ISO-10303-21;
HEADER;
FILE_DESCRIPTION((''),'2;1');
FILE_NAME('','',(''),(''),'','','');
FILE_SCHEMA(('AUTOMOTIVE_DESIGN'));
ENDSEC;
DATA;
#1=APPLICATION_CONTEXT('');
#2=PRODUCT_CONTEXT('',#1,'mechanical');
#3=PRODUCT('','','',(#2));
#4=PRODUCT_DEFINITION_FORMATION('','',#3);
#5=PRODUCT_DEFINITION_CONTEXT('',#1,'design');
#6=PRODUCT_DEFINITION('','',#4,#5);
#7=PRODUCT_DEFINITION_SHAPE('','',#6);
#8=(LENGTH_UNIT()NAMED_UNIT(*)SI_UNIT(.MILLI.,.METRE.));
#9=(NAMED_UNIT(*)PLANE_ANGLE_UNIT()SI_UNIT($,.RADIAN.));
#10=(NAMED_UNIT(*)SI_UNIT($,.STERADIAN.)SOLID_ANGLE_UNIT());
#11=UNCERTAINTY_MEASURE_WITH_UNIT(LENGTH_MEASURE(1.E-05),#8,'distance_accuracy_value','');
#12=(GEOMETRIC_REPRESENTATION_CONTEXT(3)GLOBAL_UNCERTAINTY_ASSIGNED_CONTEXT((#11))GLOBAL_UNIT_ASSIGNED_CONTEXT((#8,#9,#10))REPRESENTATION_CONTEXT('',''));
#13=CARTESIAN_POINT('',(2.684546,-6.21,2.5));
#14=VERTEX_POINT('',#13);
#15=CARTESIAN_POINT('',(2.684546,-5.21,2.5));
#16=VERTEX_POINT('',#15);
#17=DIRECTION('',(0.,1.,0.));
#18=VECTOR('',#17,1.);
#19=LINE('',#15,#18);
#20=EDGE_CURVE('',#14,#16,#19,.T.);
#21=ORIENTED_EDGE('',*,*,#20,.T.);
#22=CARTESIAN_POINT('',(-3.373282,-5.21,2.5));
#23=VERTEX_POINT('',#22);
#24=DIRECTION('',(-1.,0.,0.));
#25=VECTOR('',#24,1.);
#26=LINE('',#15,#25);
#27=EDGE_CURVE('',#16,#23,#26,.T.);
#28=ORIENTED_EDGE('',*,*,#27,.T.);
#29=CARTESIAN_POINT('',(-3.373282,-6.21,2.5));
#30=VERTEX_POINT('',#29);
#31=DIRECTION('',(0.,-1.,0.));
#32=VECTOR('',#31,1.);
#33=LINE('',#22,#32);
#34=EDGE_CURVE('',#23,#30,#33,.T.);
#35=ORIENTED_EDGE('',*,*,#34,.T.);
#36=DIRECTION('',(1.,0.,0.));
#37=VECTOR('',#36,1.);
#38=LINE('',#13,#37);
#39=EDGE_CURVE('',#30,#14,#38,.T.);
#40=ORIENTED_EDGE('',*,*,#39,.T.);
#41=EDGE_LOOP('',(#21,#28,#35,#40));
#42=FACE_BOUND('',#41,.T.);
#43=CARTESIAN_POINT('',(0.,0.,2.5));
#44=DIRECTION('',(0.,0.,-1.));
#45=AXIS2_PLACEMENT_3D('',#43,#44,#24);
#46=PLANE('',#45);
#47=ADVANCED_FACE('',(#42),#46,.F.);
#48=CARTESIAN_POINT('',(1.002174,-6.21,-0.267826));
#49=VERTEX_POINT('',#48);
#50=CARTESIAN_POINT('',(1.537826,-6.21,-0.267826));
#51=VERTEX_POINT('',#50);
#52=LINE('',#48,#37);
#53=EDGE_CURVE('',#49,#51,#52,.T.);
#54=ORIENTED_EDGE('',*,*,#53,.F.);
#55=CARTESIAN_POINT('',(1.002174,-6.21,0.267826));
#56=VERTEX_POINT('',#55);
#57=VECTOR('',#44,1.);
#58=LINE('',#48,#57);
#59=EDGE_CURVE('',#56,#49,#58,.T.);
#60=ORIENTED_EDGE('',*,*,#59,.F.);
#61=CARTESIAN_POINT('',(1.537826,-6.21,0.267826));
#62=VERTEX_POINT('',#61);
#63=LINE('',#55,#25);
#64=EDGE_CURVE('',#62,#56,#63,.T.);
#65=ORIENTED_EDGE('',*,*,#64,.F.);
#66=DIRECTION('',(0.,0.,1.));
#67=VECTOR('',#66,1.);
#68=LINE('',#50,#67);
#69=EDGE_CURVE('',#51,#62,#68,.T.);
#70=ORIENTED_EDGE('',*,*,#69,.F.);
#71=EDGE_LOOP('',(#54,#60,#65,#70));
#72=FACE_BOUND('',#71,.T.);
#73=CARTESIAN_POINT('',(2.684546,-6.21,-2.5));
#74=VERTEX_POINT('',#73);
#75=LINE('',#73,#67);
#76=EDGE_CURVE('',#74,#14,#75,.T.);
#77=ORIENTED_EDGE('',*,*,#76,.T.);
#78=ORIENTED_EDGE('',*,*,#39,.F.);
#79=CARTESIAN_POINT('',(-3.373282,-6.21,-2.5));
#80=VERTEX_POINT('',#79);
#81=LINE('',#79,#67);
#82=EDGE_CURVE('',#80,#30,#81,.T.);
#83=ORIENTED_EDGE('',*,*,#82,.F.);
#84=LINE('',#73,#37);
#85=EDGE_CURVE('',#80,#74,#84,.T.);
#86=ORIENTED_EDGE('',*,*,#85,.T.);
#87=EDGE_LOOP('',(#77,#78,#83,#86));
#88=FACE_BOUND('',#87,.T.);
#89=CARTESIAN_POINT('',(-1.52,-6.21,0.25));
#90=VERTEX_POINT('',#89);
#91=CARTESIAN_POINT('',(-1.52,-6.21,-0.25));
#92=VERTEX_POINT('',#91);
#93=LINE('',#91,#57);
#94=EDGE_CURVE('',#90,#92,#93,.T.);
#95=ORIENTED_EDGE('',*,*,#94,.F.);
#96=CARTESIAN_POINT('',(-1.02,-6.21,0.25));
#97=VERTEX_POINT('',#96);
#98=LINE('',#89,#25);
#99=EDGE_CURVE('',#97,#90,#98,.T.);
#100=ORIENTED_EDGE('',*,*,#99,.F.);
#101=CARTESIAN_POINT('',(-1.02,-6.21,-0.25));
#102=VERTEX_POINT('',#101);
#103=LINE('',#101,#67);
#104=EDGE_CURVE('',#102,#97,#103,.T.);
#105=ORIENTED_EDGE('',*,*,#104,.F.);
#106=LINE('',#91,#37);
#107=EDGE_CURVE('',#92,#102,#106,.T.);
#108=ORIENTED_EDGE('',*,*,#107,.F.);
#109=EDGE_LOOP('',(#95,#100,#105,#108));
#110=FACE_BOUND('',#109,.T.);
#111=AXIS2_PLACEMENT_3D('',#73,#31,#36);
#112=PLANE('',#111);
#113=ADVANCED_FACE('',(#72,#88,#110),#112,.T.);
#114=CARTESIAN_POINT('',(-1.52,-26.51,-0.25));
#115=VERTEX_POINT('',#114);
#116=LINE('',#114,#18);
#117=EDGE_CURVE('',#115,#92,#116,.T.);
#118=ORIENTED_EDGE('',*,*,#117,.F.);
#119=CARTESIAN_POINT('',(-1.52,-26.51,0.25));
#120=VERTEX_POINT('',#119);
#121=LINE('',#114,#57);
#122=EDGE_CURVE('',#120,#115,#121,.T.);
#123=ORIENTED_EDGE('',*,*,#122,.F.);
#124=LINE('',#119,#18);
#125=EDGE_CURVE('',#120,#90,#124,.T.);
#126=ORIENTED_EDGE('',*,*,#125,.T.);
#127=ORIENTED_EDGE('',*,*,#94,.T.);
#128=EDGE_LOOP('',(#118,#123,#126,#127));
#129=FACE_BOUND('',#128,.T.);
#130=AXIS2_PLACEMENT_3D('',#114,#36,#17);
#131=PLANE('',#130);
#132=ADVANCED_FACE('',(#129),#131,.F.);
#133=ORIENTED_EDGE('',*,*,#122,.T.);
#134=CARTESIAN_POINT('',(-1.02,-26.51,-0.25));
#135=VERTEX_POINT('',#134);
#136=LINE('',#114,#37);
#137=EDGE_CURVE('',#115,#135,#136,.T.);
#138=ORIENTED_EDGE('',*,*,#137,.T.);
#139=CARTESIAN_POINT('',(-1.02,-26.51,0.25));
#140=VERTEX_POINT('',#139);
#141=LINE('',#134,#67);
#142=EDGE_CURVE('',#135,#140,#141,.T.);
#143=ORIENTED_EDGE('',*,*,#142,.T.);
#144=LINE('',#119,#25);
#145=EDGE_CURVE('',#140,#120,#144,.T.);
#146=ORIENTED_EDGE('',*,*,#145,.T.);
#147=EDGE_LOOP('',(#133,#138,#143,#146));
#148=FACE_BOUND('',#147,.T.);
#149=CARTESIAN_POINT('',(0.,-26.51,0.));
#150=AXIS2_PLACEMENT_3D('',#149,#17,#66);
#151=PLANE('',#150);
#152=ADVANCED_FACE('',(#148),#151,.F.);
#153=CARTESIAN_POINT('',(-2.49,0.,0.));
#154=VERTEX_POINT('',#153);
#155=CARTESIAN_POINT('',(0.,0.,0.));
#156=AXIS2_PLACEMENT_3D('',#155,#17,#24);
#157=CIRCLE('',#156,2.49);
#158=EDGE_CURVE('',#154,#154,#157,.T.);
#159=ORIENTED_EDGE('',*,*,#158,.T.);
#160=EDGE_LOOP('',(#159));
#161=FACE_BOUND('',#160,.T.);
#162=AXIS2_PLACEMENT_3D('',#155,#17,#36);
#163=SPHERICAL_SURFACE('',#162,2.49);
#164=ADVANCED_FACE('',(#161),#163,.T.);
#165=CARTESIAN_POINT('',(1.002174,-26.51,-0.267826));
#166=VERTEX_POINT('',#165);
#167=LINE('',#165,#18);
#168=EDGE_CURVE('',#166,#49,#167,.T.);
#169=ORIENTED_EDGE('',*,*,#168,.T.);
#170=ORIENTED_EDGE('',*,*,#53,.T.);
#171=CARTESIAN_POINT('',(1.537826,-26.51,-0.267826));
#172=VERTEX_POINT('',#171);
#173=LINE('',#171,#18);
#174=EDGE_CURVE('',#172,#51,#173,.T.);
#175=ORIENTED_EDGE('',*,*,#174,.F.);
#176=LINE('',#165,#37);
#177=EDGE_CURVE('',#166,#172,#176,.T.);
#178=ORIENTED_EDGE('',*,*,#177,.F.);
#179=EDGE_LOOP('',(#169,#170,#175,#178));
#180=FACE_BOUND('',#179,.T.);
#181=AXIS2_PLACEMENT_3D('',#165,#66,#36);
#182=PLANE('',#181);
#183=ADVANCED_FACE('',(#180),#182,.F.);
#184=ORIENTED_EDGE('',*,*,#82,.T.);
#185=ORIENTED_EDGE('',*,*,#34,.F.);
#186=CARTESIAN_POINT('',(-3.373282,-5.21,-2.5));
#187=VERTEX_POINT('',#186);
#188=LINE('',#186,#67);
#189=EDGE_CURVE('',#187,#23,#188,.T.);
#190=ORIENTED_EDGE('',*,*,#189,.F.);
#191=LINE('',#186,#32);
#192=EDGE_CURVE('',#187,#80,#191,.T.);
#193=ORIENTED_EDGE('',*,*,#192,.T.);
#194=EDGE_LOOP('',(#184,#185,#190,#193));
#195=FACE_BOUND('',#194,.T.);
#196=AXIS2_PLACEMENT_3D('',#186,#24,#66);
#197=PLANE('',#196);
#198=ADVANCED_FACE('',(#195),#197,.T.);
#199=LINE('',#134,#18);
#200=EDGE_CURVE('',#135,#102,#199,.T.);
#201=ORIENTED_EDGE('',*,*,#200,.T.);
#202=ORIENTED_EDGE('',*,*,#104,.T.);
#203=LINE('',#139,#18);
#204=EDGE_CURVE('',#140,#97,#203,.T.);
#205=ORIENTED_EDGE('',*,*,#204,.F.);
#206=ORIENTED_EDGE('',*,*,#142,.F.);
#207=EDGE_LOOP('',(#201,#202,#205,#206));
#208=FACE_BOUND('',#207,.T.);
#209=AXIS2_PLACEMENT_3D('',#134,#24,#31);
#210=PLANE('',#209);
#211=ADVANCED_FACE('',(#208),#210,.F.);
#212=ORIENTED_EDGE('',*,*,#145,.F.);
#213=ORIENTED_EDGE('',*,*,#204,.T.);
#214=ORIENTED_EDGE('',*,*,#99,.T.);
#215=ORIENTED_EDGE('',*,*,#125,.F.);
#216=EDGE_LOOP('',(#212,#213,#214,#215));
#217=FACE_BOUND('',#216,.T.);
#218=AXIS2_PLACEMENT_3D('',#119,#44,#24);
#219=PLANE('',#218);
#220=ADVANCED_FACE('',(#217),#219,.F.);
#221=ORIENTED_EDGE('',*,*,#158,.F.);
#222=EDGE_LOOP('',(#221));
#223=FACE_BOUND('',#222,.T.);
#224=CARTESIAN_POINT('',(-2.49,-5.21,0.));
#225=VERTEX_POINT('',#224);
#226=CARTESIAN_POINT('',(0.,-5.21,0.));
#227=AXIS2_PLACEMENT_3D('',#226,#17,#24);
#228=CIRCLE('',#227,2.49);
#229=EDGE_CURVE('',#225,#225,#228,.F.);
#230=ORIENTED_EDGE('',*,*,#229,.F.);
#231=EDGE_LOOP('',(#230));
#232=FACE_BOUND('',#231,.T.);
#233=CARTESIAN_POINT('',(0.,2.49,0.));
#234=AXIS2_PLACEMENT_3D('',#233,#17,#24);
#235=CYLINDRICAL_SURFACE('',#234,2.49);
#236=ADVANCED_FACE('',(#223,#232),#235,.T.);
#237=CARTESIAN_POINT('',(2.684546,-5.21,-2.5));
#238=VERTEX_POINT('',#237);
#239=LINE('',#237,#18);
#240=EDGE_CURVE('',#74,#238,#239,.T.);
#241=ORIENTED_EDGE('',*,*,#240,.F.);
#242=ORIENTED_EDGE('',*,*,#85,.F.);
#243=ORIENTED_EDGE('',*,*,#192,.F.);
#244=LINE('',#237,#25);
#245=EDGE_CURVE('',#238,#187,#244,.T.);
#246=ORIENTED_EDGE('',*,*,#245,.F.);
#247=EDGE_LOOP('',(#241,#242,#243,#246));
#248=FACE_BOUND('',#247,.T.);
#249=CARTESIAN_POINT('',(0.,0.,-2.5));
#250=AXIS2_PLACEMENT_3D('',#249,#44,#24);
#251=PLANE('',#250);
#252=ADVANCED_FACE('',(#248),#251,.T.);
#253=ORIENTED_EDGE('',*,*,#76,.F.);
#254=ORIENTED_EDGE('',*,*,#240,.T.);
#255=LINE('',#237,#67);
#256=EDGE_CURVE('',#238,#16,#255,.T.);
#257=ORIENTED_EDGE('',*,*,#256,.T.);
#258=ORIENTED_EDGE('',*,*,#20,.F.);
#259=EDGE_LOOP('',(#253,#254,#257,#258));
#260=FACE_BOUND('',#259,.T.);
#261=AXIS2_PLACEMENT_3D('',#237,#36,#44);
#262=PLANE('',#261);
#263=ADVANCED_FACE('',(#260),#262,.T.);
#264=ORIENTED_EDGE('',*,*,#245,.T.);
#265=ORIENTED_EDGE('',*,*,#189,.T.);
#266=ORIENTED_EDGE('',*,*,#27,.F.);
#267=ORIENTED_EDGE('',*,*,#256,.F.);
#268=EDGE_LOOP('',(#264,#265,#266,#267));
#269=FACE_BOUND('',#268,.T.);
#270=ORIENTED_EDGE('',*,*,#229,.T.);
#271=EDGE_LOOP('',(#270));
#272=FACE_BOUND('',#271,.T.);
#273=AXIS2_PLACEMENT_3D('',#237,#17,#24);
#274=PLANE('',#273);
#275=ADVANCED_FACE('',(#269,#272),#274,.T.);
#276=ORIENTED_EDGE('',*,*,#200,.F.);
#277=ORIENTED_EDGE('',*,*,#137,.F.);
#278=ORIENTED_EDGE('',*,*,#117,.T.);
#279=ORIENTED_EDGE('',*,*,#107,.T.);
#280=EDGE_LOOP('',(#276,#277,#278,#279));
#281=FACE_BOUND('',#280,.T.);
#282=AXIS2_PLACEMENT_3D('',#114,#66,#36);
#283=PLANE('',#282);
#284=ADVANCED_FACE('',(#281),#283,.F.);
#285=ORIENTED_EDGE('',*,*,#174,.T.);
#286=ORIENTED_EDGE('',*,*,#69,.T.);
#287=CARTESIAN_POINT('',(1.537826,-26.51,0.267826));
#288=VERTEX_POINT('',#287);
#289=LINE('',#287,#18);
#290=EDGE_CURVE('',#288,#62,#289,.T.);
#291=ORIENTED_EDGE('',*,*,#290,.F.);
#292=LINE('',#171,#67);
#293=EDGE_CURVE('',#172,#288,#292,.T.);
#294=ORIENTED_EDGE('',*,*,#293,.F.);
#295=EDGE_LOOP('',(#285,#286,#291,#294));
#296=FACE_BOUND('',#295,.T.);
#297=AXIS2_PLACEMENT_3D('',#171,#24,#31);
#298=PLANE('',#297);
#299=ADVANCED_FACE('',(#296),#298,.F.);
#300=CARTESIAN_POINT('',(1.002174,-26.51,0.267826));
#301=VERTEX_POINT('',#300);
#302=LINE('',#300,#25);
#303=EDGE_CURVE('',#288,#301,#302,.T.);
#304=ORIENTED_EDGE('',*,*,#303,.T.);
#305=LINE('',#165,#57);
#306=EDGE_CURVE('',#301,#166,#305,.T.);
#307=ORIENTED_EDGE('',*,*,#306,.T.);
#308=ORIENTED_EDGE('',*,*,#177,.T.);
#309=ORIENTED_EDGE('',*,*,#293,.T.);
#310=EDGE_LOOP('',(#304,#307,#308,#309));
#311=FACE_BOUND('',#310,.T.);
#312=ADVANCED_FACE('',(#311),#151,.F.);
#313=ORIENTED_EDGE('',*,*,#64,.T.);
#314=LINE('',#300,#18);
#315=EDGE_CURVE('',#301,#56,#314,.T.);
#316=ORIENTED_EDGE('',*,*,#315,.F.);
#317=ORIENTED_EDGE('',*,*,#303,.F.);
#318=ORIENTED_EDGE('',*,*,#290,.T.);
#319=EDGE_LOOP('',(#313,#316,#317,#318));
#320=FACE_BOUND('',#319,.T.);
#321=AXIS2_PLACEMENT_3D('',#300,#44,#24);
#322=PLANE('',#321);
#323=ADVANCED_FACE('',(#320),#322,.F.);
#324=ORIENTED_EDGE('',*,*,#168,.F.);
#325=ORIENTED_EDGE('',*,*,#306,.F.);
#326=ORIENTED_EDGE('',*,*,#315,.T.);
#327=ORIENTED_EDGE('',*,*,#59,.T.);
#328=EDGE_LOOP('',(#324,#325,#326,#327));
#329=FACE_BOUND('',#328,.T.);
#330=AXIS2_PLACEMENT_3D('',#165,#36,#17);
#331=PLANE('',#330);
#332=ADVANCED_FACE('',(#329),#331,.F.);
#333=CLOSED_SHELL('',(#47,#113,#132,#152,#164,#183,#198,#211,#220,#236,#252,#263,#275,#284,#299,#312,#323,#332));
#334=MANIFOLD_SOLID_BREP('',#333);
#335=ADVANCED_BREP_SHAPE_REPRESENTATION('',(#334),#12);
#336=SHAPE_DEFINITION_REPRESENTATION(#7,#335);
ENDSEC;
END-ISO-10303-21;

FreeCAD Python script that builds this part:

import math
import FreeCAD as App
import Part
import Sketcher

V = App.Vector
Q = App.Units.Quantity


def add_polygon(sketch, points):
    """Adds a closed chain of lines whose ends are joined by coincident constraints."""
    first, n = sketch.GeometryCount, len(points)
    for a, b in zip(points, points[1:] + points[:1]):
        sketch.addGeometry(Part.LineSegment(App.Vector(*a, 0), App.Vector(*b, 0)), False)
    for i in range(n):
        sketch.addConstraint(Sketcher.Constraint("Coincident", first + i, 2, first + (i + 1) % n, 1))

doc = App.newDocument("Part")
body = doc.addObject("PartDesign::Body", "Body")

# Sketch on XY plane
sketch1 = body.newObject("Sketcher::SketchObject", "Sketch")
sketch1.AttachmentSupport = (doc.getObject("XY_Plane"), [""])
sketch1.MapMode = "FlatFace"
sketch1.addGeometry([
    Part.LineSegment(V(0, -5.2, 0), V(2.5, -5.2, 0)),
    Part.LineSegment(V(2.5, -5.2, 0), V(2.5, 0, 0)),
    Part.ArcOfCircle(Part.Circle(V(0, 0, 0), V(0, 0, 1), 2.5), math.radians(0), math.radians(90)),
    Part.LineSegment(V(0, 2.5, 0), V(0, -5.2, 0)),
], False)
sketch1.addConstraint([
    Sketcher.Constraint("Coincident", 0, 2, 1, 1),
    Sketcher.Constraint("Tangent", 1, 2, 2, 1),
    Sketcher.Constraint("Coincident", 2, 2, 3, 1),
    Sketcher.Constraint("Coincident", 3, 2, 0, 1),
    Sketcher.Constraint("Horizontal", 0),
    Sketcher.Constraint("Vertical", 1),
    Sketcher.Constraint("Vertical", 3),
    Sketcher.Constraint("Coincident", 2, 3, -1, 1),
    Sketcher.Constraint("PointOnObject", 2, 2, -2),
    Sketcher.Constraint("Radius", 2, Q("2.49 mm")),
    Sketcher.Constraint("DistanceY", 3, 2, 3, 1, Q("7.7 mm")),
])
revolution = body.newObject("PartDesign::Revolution", "Revolution")
revolution.Profile = sketch1
revolution.ReferenceAxis = (sketch1, ["V_Axis"])
revolution.Angle = 360

# Sketch on XY plane
sketch2 = body.newObject("Sketcher::SketchObject", "Sketch001")
sketch2.AttachmentSupport = (doc.getObject("XY_Plane"), [""])
sketch2.MapMode = "FlatFace"
add_polygon(sketch2, [(-3.4, -5.2), (-3.4, -6.2), (2.7, -6.2), (2.7, -5.2)])  # lines 0-3
sketch2.addConstraint([
    Sketcher.Constraint("Vertical", 0),
    Sketcher.Constraint("Horizontal", 1),
    Sketcher.Constraint("Vertical", 2),
    Sketcher.Constraint("Horizontal", 3),
    Sketcher.Constraint("DistanceY", 0, 2, 0, 1, Q("1 mm")),
    Sketcher.Constraint("DistanceY", 0, 2, -1, 1, Q("6.21 mm")),
    Sketcher.Constraint("DistanceX", 1, 1, 1, 2, Q("6.057828 mm")),
    Sketcher.Constraint("DistanceX", 0, 2, -1, 1, Q("3.373282 mm")),
])
pad1 = body.newObject("PartDesign::Pad", "Pad")
pad1.Profile = sketch2
pad1.Length = 5
pad1.Midplane = True

# Sketch on XZ plane
sketch3 = body.newObject("Sketcher::SketchObject", "Sketch002")
sketch3.AttachmentSupport = (doc.getObject("XZ_Plane"), [""])
sketch3.MapMode = "FlatFace"
sketch3.AttachmentOffset = App.Placement(V(0, 0, 6.21), App.Rotation())
add_polygon(sketch3, [(-1.5, 0.2), (-1.5, -0.2), (-1, -0.2), (-1, 0.2)])  # lines 0-3
add_polygon(sketch3, [(1, 0.3), (1, -0.3), (1.5, -0.3), (1.5, 0.3)])  # lines 4-7
sketch3.addConstraint([
    Sketcher.Constraint("Vertical", 0),
    Sketcher.Constraint("Horizontal", 1),
    Sketcher.Constraint("Vertical", 2),
    Sketcher.Constraint("Horizontal", 3),
    Sketcher.Constraint("Vertical", 4),
    Sketcher.Constraint("Horizontal", 5),
    Sketcher.Constraint("Vertical", 6),
    Sketcher.Constraint("Horizontal", 7),
    Sketcher.Constraint("Equal", 3, 0),
    Sketcher.Constraint("Equal", 7, 4),
    Sketcher.Constraint("DistanceX", 1, 1, 1, 2, Q("0.5 mm")),
    Sketcher.Constraint("DistanceX", 0, 2, -1, 1, Q("1.52 mm")),
    Sketcher.Constraint("DistanceY", 0, 2, -1, 1, Q("0.25 mm")),
    Sketcher.Constraint("DistanceX", 5, 1, 5, 2, Q("0.535653 mm")),
    Sketcher.Constraint("DistanceX", -1, 1, 4, 2, Q("1.002174 mm")),
    Sketcher.Constraint("DistanceY", 4, 2, -1, 1, Q("0.267826 mm")),
])
pad2 = body.newObject("PartDesign::Pad", "Pad001")
pad2.Profile = sketch3
pad2.Length = 20.3

doc.recompute()
